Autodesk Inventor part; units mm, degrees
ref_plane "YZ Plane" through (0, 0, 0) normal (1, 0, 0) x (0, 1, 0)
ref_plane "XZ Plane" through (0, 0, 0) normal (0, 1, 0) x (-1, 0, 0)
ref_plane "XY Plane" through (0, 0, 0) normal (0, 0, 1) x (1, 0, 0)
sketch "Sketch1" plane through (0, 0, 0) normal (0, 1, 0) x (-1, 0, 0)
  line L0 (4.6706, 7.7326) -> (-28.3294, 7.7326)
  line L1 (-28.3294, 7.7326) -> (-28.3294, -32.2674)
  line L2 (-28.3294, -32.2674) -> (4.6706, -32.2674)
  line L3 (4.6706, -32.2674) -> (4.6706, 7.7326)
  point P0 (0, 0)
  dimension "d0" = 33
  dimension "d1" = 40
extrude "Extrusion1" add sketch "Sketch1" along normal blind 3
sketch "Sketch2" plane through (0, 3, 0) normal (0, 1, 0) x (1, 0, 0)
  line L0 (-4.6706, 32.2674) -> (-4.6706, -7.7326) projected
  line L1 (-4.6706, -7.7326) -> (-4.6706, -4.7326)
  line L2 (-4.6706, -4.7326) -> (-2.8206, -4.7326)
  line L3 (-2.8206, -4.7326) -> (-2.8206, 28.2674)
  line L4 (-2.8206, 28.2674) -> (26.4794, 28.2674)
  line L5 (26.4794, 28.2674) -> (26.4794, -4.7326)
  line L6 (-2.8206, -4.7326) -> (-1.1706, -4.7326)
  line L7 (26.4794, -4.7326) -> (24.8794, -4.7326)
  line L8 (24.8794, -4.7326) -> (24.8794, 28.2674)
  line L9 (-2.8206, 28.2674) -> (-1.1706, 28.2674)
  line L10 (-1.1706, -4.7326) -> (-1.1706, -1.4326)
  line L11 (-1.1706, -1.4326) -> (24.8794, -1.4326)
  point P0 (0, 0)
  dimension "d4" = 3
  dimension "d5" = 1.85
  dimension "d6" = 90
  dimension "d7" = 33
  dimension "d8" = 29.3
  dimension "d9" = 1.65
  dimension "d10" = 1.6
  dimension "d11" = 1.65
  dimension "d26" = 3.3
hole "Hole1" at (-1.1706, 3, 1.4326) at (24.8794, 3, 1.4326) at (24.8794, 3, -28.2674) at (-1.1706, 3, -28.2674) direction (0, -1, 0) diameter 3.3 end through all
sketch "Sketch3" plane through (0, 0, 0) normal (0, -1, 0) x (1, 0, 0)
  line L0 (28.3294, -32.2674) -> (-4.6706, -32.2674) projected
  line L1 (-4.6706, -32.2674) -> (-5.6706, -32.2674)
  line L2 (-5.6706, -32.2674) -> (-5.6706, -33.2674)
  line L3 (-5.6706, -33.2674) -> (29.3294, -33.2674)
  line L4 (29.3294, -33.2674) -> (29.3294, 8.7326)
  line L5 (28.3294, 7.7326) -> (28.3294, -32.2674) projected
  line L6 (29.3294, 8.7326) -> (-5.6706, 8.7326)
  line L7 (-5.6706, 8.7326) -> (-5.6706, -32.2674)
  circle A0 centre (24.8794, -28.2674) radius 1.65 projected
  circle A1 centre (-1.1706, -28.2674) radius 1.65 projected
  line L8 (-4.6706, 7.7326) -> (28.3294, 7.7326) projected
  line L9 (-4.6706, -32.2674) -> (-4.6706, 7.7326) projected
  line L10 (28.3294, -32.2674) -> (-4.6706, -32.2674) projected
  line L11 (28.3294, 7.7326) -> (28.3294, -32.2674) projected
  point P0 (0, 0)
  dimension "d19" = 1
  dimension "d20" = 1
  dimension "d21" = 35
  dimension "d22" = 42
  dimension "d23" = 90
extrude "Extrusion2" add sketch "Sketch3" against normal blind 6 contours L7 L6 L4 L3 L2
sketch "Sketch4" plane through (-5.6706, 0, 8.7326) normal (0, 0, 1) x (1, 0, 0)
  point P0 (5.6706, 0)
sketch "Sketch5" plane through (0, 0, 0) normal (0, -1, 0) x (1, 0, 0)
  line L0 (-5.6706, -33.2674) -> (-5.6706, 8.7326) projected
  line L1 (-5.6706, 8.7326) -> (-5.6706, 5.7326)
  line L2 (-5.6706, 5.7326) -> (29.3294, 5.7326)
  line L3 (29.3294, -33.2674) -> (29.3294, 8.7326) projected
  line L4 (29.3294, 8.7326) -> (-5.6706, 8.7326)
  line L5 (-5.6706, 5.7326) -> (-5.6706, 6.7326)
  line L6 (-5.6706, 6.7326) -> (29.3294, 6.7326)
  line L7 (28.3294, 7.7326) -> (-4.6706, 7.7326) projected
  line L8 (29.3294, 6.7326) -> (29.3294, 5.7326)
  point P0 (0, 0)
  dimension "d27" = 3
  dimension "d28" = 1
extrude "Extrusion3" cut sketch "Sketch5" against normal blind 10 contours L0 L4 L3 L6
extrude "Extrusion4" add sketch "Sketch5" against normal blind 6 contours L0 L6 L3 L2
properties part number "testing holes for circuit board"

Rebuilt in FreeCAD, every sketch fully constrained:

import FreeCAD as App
import Part
import Sketcher
from FreeCAD import Vector
Q = App.Units.Quantity


def add_polygon(sketch, points):
    """Adds a closed chain of lines whose ends are joined by coincident constraints."""
    first, n = sketch.GeometryCount, len(points)
    for a, b in zip(points, points[1:] + points[:1]):
        sketch.addGeometry(Part.LineSegment(App.Vector(*a, 0), App.Vector(*b, 0)), False)
    for i in range(n):
        sketch.addConstraint(Sketcher.Constraint("Coincident", first + i, 2, first + (i + 1) % n, 1))

doc = App.newDocument("Part")
body = doc.addObject("PartDesign::Body", "Body")

# Sketch on XZ plane
sketch1 = body.newObject("Sketcher::SketchObject", "Sketch")
sketch1.AttachmentSupport = (doc.getObject("XZ_Plane"), [""])
sketch1.MapMode = "FlatFace"
add_polygon(sketch1, [(-5, -32), (-5, 8), (28, 8), (28, -32)])  # lines 0-3
sketch1.addConstraint(Sketcher.Constraint("Vertical", 0))
sketch1.addConstraint(Sketcher.Constraint("Horizontal", 1))
sketch1.addConstraint(Sketcher.Constraint("Vertical", 2))
sketch1.addConstraint(Sketcher.Constraint("Horizontal", 3))
sketch1.addConstraint(Sketcher.Constraint("DistanceX", 1, 1, 1, 2, Q("33 mm")))
sketch1.addConstraint(Sketcher.Constraint("DistanceY", 0, 1, 0, 2, Q("40 mm")))
sketch1.addConstraint(Sketcher.Constraint("DistanceX", 0, 2, -1, 1, Q("4.6706 mm")))
sketch1.addConstraint(Sketcher.Constraint("DistanceY", -1, 1, 0, 2, Q("7.7326 mm")))
pad1 = body.newObject("PartDesign::Pad", "Pad")
pad1.Profile = sketch1
pad1.Length = 3
pad1.Reversed = True

# Sketch on XZ plane
sketch2 = body.newObject("Sketcher::SketchObject", "Sketch001")
sketch2.AttachmentSupport = (doc.getObject("XZ_Plane"), [""])
sketch2.MapMode = "FlatFace"
sketch2.AttachmentOffset = App.Placement(Vector(0, 0, -3), App.Rotation())
sketch2.addGeometry(Part.Circle(Vector(-1.2, 1.4, 0), Vector(0, 0, 1), 1.6), False)
sketch2.addGeometry(Part.Circle(Vector(24.9, 1.4, 0), Vector(0, 0, 1), 1.6), False)
sketch2.addGeometry(Part.Circle(Vector(24.9, -28.3, 0), Vector(0, 0, 1), 1.6), False)
sketch2.addGeometry(Part.Circle(Vector(-1.2, -28.3, 0), Vector(0, 0, 1), 1.6), False)
sketch2.addConstraint(Sketcher.Constraint("Equal", 0, 1))
sketch2.addConstraint(Sketcher.Constraint("Equal", 1, 2))
sketch2.addConstraint(Sketcher.Constraint("Equal", 2, 3))
sketch2.addConstraint(Sketcher.Constraint("Horizontal", 0, 3, 1, 3))
sketch2.addConstraint(Sketcher.Constraint("Horizontal", 2, 3, 3, 3))
sketch2.addConstraint(Sketcher.Constraint("Vertical", 1, 3, 2, 3))
sketch2.addConstraint(Sketcher.Constraint("Vertical", 0, 3, 3, 3))
sketch2.addConstraint(Sketcher.Constraint("Diameter", 0, Q("3.3 mm")))
sketch2.addConstraint(Sketcher.Constraint("DistanceY", 2, 3, 1, 3, Q("29.7 mm")))
sketch2.addConstraint(Sketcher.Constraint("DistanceX", 0, 3, 1, 3, Q("26.05 mm")))
sketch2.addConstraint(Sketcher.Constraint("DistanceX", 0, 3, -1, 1, Q("1.1706 mm")))
sketch2.addConstraint(Sketcher.Constraint("DistanceY", -1, 1, 0, 3, Q("1.4326 mm")))
doc.recompute()
hole = body.newObject("PartDesign::Hole", "Hole")
hole.Profile = sketch2
hole.ThreadType = "None"
hole.Diameter = 3.3
hole.DepthType = "ThroughAll"
hole.Reversed = True

# Sketch on XZ plane
sketch3 = body.newObject("Sketcher::SketchObject", "Sketch002")
sketch3.AttachmentSupport = (doc.getObject("XZ_Plane"), [""])
sketch3.MapMode = "FlatFace"
add_polygon(sketch3, [(-5.7, 8.7), (-5.7, -32.3), (-5.7, -33.3), (29.3, -33.3), (29.3, 8.7)])  # lines 0-4
add_polygon(sketch3, [(28.3, 7.7), (28.3, -32.3), (-4.7, -32.3), (-4.7, 7.7)])  # lines 5-8
sketch3.addConstraint(Sketcher.Constraint("Vertical", 0))
sketch3.addConstraint(Sketcher.Constraint("Vertical", 1))
sketch3.addConstraint(Sketcher.Constraint("Horizontal", 2))
sketch3.addConstraint(Sketcher.Constraint("Vertical", 3))
sketch3.addConstraint(Sketcher.Constraint("Horizontal", 4))
sketch3.addConstraint(Sketcher.Constraint("Vertical", 5))
sketch3.addConstraint(Sketcher.Constraint("Horizontal", 6))
sketch3.addConstraint(Sketcher.Constraint("Vertical", 7))
sketch3.addConstraint(Sketcher.Constraint("Horizontal", 8))
sketch3.addConstraint(Sketcher.Constraint("Horizontal", 0, 2, 5, 2))
sketch3.addConstraint(Sketcher.Constraint("DistanceX", 2, 1, 2, 2, Q("35 mm")))
sketch3.addConstraint(Sketcher.Constraint("DistanceY", 1, 2, 1, 1, Q("1 mm")))
sketch3.addConstraint(Sketcher.Constraint("DistanceY", 3, 1, 3, 2, Q("42 mm")))
sketch3.addConstraint(Sketcher.Constraint("DistanceX", 5, 2, 2, 2, Q("1 mm")))
sketch3.addConstraint(Sketcher.Constraint("DistanceX", 0, 2, 6, 2, Q("1 mm")))
sketch3.addConstraint(Sketcher.Constraint("DistanceY", 7, 2, 4, 2, Q("1 mm")))
sketch3.addConstraint(Sketcher.Constraint("DistanceX", 0, 2, -1, 1, Q("5.6706 mm")))
sketch3.addConstraint(Sketcher.Constraint("DistanceY", 0, 2, -1, 1, Q("32.2674 mm")))
pad2 = body.newObject("PartDesign::Pad", "Pad001")
pad2.Profile = sketch3
pad2.Length = 6
pad2.Reversed = True

# Sketch on XZ plane
sketch4 = body.newObject("Sketcher::SketchObject", "Sketch003")
sketch4.AttachmentSupport = (doc.getObject("XZ_Plane"), [""])
sketch4.MapMode = "FlatFace"
add_polygon(sketch4, [(-5.7, 8.7), (-5.7, 6.7), (29.3, 6.7), (29.3, 8.7)])  # lines 0-3
sketch4.addConstraint(Sketcher.Constraint("Vertical", 0))
sketch4.addConstraint(Sketcher.Constraint("Horizontal", 1))
sketch4.addConstraint(Sketcher.Constraint("Vertical", 2))
sketch4.addConstraint(Sketcher.Constraint("Horizontal", 3))
sketch4.addConstraint(Sketcher.Constraint("DistanceX", 1, 1, 1, 2, Q("35 mm")))
sketch4.addConstraint(Sketcher.Constraint("DistanceY", 0, 2, 0, 1, Q("2 mm")))
sketch4.addConstraint(Sketcher.Constraint("DistanceX", 0, 2, -1, 1, Q("5.6706 mm")))
sketch4.addConstraint(Sketcher.Constraint("DistanceY", -1, 1, 0, 2, Q("6.7326 mm")))
pocket1 = body.newObject("PartDesign::Pocket", "Pocket")
pocket1.Profile = sketch4
pocket1.Length = 10

# Sketch on XZ plane
sketch5 = body.newObject("Sketcher::SketchObject", "Sketch004")
sketch5.AttachmentSupport = (doc.getObject("XZ_Plane"), [""])
sketch5.MapMode = "FlatFace"
add_polygon(sketch5, [(-5.7, 6.7), (-5.7, 5.7), (29.3, 5.7), (29.3, 6.7)])  # lines 0-3
sketch5.addConstraint(Sketcher.Constraint("Vertical", 0))
sketch5.addConstraint(Sketcher.Constraint("Horizontal", 1))
sketch5.addConstraint(Sketcher.Constraint("Vertical", 2))
sketch5.addConstraint(Sketcher.Constraint("Horizontal", 3))
sketch5.addConstraint(Sketcher.Constraint("DistanceY", 0, 2, 0, 1, Q("1 mm")))
sketch5.addConstraint(Sketcher.Constraint("DistanceX", 1, 1, 1, 2, Q("35 mm")))
sketch5.addConstraint(Sketcher.Constraint("DistanceX", 0, 2, -1, 1, Q("5.6706 mm")))
sketch5.addConstraint(Sketcher.Constraint("DistanceY", -1, 1, 0, 2, Q("5.7326 mm")))
pad3 = body.newObject("PartDesign::Pad", "Pad002")
pad3.Profile = sketch5
pad3.Length = 6
pad3.Reversed = True

doc.recompute()
